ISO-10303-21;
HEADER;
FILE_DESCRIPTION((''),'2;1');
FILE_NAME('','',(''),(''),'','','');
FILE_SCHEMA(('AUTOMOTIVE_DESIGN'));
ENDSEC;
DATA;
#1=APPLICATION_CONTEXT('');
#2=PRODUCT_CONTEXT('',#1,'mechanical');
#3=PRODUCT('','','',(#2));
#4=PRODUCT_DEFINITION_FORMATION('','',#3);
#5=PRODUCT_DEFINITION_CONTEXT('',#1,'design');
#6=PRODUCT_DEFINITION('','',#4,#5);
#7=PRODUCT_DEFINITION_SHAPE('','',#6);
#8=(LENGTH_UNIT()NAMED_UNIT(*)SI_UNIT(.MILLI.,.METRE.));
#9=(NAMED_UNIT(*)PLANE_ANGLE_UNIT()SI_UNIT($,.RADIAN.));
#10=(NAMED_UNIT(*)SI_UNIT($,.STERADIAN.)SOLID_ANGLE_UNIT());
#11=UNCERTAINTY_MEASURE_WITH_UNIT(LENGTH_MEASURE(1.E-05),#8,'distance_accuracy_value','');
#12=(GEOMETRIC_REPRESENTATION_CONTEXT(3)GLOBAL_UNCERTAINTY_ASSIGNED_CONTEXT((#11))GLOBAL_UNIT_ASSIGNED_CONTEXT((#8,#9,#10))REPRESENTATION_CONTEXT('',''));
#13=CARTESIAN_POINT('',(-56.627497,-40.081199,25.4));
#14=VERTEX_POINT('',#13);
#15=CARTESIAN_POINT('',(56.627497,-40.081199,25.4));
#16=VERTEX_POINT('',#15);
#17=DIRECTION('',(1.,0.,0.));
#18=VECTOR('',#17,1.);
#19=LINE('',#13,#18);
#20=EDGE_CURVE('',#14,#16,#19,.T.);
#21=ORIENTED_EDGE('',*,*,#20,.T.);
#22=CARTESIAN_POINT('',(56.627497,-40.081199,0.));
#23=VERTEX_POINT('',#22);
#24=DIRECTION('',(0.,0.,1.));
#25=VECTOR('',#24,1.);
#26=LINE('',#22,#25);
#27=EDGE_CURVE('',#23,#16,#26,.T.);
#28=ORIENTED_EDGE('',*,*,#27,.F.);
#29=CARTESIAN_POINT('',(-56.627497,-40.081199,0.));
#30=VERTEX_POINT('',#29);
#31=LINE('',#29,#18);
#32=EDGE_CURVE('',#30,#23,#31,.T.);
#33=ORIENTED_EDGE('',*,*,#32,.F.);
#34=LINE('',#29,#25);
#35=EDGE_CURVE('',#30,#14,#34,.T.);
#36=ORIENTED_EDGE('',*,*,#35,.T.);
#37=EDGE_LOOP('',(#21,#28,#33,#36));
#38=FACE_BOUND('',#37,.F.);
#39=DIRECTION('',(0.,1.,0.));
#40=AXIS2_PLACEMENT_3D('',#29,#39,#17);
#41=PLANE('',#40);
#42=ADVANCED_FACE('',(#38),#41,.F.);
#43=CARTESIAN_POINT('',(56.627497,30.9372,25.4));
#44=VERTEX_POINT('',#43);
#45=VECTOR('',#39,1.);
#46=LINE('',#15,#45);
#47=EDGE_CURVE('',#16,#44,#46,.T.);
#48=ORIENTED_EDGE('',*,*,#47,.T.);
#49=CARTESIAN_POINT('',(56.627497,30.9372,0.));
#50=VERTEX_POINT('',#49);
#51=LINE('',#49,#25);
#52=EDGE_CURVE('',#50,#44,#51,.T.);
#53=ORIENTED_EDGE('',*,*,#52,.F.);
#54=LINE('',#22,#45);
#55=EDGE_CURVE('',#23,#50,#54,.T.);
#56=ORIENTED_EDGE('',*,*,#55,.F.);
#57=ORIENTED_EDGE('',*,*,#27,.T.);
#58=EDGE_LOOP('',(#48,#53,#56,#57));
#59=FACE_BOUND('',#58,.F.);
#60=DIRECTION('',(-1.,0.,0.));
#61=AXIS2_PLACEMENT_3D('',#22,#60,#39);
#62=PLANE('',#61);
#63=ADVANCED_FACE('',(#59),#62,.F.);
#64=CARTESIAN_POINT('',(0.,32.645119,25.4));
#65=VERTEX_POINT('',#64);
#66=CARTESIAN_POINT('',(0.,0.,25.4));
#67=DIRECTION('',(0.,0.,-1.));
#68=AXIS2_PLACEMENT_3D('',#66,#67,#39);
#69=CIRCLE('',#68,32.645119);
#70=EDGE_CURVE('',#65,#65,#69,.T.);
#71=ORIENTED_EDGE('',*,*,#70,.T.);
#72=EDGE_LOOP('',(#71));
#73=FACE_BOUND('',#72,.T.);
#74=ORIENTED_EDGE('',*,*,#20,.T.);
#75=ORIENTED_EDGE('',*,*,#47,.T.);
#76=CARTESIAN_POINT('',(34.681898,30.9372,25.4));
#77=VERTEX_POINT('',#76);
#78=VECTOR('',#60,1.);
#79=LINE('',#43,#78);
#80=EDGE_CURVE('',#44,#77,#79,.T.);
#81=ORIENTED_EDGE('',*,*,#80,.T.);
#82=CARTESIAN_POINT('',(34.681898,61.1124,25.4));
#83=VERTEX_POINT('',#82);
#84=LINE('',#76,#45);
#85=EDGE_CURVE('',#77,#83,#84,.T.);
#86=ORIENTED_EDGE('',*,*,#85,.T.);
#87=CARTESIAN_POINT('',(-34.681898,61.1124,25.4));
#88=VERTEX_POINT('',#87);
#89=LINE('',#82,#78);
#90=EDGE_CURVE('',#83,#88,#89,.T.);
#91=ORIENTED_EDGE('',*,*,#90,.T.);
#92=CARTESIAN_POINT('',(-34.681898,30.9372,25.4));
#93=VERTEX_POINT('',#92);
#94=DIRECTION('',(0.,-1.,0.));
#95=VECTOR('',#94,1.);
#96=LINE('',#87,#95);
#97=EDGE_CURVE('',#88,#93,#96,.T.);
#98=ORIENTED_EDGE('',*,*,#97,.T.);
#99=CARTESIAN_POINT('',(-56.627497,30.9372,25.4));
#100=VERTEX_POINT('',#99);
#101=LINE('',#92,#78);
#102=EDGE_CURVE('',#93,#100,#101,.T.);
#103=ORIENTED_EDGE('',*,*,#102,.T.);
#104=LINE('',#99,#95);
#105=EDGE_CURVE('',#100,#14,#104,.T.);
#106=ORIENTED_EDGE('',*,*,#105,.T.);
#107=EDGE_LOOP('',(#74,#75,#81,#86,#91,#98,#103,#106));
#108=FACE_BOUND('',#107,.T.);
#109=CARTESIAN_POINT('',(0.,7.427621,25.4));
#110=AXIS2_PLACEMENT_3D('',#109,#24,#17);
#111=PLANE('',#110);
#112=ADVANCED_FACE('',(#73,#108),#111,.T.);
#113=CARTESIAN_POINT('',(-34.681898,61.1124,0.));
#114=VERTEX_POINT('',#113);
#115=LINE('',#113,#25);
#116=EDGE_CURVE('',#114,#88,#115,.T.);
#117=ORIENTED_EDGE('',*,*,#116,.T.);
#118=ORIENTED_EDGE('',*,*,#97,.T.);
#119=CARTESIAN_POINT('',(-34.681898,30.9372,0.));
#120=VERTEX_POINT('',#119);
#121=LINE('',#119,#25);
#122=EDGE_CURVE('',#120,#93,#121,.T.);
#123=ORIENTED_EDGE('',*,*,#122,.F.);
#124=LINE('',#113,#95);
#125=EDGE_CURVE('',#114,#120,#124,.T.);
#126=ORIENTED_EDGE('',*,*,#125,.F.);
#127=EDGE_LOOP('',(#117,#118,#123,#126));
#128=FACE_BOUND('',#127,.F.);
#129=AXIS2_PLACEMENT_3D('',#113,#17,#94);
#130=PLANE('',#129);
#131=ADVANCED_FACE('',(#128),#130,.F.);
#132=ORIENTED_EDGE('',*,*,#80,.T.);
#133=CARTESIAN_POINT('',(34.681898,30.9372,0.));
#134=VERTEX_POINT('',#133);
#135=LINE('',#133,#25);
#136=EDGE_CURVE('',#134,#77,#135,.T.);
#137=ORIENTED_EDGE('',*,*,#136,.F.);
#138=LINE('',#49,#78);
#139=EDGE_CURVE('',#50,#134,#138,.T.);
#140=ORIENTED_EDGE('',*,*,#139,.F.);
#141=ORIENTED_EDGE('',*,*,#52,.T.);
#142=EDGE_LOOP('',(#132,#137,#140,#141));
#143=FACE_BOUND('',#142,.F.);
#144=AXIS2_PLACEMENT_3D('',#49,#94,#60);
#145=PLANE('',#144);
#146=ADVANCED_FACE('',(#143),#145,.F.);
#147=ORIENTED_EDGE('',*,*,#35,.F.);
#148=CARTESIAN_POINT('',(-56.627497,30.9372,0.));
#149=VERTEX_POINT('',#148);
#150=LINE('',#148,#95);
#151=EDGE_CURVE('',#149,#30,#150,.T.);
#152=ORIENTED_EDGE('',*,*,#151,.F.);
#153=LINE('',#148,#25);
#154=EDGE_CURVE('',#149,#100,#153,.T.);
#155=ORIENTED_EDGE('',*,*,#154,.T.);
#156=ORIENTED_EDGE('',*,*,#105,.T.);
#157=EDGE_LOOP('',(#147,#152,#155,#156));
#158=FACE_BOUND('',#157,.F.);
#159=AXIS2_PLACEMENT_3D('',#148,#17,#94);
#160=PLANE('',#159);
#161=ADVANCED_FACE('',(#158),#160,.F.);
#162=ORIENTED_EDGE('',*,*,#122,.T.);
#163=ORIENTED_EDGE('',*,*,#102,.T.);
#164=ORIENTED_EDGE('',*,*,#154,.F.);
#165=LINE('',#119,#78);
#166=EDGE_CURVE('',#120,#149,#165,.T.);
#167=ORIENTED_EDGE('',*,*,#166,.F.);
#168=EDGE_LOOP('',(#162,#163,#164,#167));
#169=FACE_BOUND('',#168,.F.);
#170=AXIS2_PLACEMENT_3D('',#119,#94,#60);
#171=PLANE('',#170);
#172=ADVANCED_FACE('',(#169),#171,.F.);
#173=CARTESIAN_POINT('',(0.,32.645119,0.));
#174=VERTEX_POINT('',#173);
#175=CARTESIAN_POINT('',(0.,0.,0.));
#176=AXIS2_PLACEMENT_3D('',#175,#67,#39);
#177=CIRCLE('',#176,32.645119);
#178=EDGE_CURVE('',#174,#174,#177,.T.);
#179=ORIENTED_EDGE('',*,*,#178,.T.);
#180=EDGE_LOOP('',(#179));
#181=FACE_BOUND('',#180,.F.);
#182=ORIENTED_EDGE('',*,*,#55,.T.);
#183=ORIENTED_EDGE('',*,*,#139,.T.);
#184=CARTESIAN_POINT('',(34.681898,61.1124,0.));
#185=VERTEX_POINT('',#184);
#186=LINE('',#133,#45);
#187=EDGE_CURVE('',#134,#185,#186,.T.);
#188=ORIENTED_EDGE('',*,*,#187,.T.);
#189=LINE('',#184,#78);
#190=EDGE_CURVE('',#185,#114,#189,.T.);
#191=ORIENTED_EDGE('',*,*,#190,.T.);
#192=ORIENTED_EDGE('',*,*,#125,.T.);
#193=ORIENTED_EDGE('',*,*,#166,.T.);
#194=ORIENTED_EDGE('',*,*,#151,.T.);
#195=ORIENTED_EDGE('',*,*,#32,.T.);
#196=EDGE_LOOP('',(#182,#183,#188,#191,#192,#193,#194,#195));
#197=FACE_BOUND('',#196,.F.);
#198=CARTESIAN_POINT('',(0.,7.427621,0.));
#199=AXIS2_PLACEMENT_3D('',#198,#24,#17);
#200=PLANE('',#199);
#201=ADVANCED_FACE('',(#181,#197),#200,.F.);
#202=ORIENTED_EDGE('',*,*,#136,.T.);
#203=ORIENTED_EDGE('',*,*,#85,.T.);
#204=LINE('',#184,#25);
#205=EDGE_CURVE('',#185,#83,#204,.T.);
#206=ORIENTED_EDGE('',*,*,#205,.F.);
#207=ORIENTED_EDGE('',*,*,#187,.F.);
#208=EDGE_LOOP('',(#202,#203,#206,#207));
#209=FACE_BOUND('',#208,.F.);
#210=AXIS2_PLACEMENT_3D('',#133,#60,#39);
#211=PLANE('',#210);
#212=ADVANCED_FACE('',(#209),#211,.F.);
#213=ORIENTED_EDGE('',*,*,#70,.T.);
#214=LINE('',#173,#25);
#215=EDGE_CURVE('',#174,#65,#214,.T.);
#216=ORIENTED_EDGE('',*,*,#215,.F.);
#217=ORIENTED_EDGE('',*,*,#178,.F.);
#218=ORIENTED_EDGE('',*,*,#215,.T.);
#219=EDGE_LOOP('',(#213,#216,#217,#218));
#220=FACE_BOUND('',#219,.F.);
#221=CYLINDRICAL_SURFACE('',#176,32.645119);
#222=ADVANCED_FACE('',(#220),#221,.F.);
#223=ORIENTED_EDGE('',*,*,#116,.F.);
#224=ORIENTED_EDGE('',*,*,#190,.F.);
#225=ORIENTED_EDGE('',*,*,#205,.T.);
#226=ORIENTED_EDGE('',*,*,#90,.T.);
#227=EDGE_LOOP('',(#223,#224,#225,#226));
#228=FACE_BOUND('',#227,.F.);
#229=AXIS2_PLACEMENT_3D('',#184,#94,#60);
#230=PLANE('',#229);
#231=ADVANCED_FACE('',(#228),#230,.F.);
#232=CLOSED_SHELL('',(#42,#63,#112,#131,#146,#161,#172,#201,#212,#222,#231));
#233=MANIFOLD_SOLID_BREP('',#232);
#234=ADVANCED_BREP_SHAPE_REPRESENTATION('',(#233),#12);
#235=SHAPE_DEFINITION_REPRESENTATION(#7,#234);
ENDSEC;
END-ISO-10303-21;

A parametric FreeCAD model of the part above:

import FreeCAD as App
import Part
import Sketcher
Q = App.Units.Quantity

doc = App.newDocument("Part")
body = doc.addObject("PartDesign::Body", "Body")

# Sketch on XY plane
sketch1 = doc.addObject("Sketcher::SketchObject", "Sketch")
body.addObject(sketch1)
sketch1.AttachmentSupport = (doc.XY_Plane, [""])
sketch1.MapMode = "FlatFace"
sketch1.addGeometry(Part.LineSegment(App.Vector(-34.681898, 30.9372, 0), App.Vector(-56.627497, 30.9372, 0)), False)
sketch1.addGeometry(Part.LineSegment(App.Vector(-56.627497, 30.9372, 0), App.Vector(-56.627497, -40.081199, 0)), False)
sketch1.addGeometry(Part.LineSegment(App.Vector(-56.627497, -40.081199, 0), App.Vector(56.627497, -40.081199, 0)), False)
sketch1.addGeometry(Part.LineSegment(App.Vector(56.627497, -40.081199, 0), App.Vector(56.627497, 30.9372, 0)), False)
sketch1.addGeometry(Part.LineSegment(App.Vector(56.627497, 30.9372, 0), App.Vector(34.681898, 30.9372, 0)), False)
sketch1.addGeometry(Part.LineSegment(App.Vector(34.681898, 30.9372, 0), App.Vector(34.681898, 61.1124, 0)), False)
sketch1.addGeometry(Part.LineSegment(App.Vector(34.681898, 61.1124, 0), App.Vector(-34.681898, 61.1124, 0)), False)
sketch1.addGeometry(Part.LineSegment(App.Vector(-34.681898, 61.1124, 0), App.Vector(-34.681898, 30.9372, 0)), False)
sketch1.addGeometry(Part.Circle(App.Vector(0, 0, 0), App.Vector(0, 0, 1), 32.645119), False)
sketch1.addConstraint(Sketcher.Constraint("Coincident", 0, 2, 1, 1))
sketch1.addConstraint(Sketcher.Constraint("Coincident", 1, 2, 2, 1))
sketch1.addConstraint(Sketcher.Constraint("Coincident", 2, 2, 3, 1))
sketch1.addConstraint(Sketcher.Constraint("Coincident", 3, 2, 4, 1))
sketch1.addConstraint(Sketcher.Constraint("Coincident", 4, 2, 5, 1))
sketch1.addConstraint(Sketcher.Constraint("Coincident", 5, 2, 6, 1))
sketch1.addConstraint(Sketcher.Constraint("Coincident", 6, 2, 7, 1))
sketch1.addConstraint(Sketcher.Constraint("Coincident", 7, 2, 0, 1))
sketch1.addConstraint(Sketcher.Constraint("Horizontal", 0))
sketch1.addConstraint(Sketcher.Constraint("Vertical", 1))
sketch1.addConstraint(Sketcher.Constraint("Horizontal", 2))
sketch1.addConstraint(Sketcher.Constraint("Vertical", 3))
sketch1.addConstraint(Sketcher.Constraint("Horizontal", 4))
sketch1.addConstraint(Sketcher.Constraint("Vertical", 5))
sketch1.addConstraint(Sketcher.Constraint("Horizontal", 6))
sketch1.addConstraint(Sketcher.Constraint("Vertical", 7))
sketch1.addConstraint(Sketcher.Constraint("Coincident", 8, 3, -1, 1))
sketch1.addConstraint(Sketcher.Constraint("Symmetric", 0, 2, 3, 2, -2))
sketch1.addConstraint(Sketcher.Constraint("Equal", 0, 4))
sketch1.addConstraint(Sketcher.Constraint("DistanceX", 0, 2, 0, 1, Q("0.864 in")))
sketch1.addConstraint(Sketcher.Constraint("DistanceY", 1, 2, 1, 1, Q("2.796 in")))
sketch1.addConstraint(Sketcher.Constraint("DistanceY", 5, 1, 5, 2, Q("1.188 in")))
sketch1.addConstraint(Sketcher.Constraint("DistanceY", -1, 1, 0, 2, Q("1.218 in")))
sketch1.addConstraint(Sketcher.Constraint("Diameter", 8, 65.290238))
sketch1.addConstraint(Sketcher.Constraint("DistanceX", 2, 1, 2, 2, 113.254994))
pad1 = doc.addObject("PartDesign::Pad", "Pad")
body.addObject(pad1)
pad1.Profile = sketch1
pad1.Length = Q("1 in")

# Sketch on XY plane
sketch2 = doc.addObject("Sketcher::SketchObject", "Sketch001")
body.addObject(sketch2)
sketch2.AttachmentSupport = (doc.XY_Plane, [""])
sketch2.MapMode = "FlatFace"
sketch2.addGeometry(Part.LineSegment(App.Vector(-34.681898, 30.9372, 0), App.Vector(-56.627497, 30.9372, 0)), False)
sketch2.addGeometry(Part.LineSegment(App.Vector(-56.627497, 30.9372, 0), App.Vector(-56.627497, -40.081199, 0)), False)
sketch2.addGeometry(Part.LineSegment(App.Vector(-56.627497, -40.081199, 0), App.Vector(56.627497, -40.081199, 0)), False)
sketch2.addGeometry(Part.LineSegment(App.Vector(56.627497, -40.081199, 0), App.Vector(56.627497, 30.9372, 0)), False)
sketch2.addGeometry(Part.LineSegment(App.Vector(56.627497, 30.9372, 0), App.Vector(34.681898, 30.9372, 0)), False)
sketch2.addGeometry(Part.LineSegment(App.Vector(34.681898, 30.9372, 0), App.Vector(34.681898, 61.1124, 0)), False)
sketch2.addGeometry(Part.LineSegment(App.Vector(34.681898, 61.1124, 0), App.Vector(-34.681898, 61.1124, 0)), False)
sketch2.addGeometry(Part.LineSegment(App.Vector(-34.681898, 61.1124, 0), App.Vector(-34.681898, 30.9372, 0)), False)
sketch2.addGeometry(Part.Circle(App.Vector(0, 0, 0), App.Vector(0, 0, 1), 32.645119), False)
sketch2.addConstraint(Sketcher.Constraint("Coincident", 0, 2, 1, 1))
sketch2.addConstraint(Sketcher.Constraint("Coincident", 1, 2, 2, 1))
sketch2.addConstraint(Sketcher.Constraint("Coincident", 2, 2, 3, 1))
sketch2.addConstraint(Sketcher.Constraint("Coincident", 3, 2, 4, 1))
sketch2.addConstraint(Sketcher.Constraint("Coincident", 4, 2, 5, 1))
sketch2.addConstraint(Sketcher.Constraint("Coincident", 5, 2, 6, 1))
sketch2.addConstraint(Sketcher.Constraint("Coincident", 6, 2, 7, 1))
sketch2.addConstraint(Sketcher.Constraint("Coincident", 7, 2, 0, 1))
sketch2.addConstraint(Sketcher.Constraint("Horizontal", 0))
sketch2.addConstraint(Sketcher.Constraint("Vertical", 1))
sketch2.addConstraint(Sketcher.Constraint("Horizontal", 2))
sketch2.addConstraint(Sketcher.Constraint("Vertical", 3))
sketch2.addConstraint(Sketcher.Constraint("Horizontal", 4))
sketch2.addConstraint(Sketcher.Constraint("Vertical", 5))
sketch2.addConstraint(Sketcher.Constraint("Horizontal", 6))
sketch2.addConstraint(Sketcher.Constraint("Vertical", 7))
sketch2.addConstraint(Sketcher.Constraint("Coincident", 8, 3, -1, 1))
sketch2.addConstraint(Sketcher.Constraint("Symmetric", 0, 2, 3, 2, -2))
sketch2.addConstraint(Sketcher.Constraint("Equal", 0, 4))
sketch2.addConstraint(Sketcher.Constraint("DistanceX", 0, 2, 0, 1, Q("0.864 in")))
sketch2.addConstraint(Sketcher.Constraint("DistanceY", 1, 2, 1, 1, Q("2.796 in")))
sketch2.addConstraint(Sketcher.Constraint("DistanceY", 5, 1, 5, 2, Q("1.188 in")))
sketch2.addConstraint(Sketcher.Constraint("DistanceY", -1, 1, 0, 2, Q("1.218 in")))
sketch2.addConstraint(Sketcher.Constraint("Diameter", 8, 65.290238))
sketch2.addConstraint(Sketcher.Constraint("DistanceX", 2, 1, 2, 2, 113.254994))
pad2 = doc.addObject("PartDesign::Pad", "Pad001")
body.addObject(pad2)
pad2.Profile = sketch2
pad2.Length = Q("1 in")

doc.recompute()
